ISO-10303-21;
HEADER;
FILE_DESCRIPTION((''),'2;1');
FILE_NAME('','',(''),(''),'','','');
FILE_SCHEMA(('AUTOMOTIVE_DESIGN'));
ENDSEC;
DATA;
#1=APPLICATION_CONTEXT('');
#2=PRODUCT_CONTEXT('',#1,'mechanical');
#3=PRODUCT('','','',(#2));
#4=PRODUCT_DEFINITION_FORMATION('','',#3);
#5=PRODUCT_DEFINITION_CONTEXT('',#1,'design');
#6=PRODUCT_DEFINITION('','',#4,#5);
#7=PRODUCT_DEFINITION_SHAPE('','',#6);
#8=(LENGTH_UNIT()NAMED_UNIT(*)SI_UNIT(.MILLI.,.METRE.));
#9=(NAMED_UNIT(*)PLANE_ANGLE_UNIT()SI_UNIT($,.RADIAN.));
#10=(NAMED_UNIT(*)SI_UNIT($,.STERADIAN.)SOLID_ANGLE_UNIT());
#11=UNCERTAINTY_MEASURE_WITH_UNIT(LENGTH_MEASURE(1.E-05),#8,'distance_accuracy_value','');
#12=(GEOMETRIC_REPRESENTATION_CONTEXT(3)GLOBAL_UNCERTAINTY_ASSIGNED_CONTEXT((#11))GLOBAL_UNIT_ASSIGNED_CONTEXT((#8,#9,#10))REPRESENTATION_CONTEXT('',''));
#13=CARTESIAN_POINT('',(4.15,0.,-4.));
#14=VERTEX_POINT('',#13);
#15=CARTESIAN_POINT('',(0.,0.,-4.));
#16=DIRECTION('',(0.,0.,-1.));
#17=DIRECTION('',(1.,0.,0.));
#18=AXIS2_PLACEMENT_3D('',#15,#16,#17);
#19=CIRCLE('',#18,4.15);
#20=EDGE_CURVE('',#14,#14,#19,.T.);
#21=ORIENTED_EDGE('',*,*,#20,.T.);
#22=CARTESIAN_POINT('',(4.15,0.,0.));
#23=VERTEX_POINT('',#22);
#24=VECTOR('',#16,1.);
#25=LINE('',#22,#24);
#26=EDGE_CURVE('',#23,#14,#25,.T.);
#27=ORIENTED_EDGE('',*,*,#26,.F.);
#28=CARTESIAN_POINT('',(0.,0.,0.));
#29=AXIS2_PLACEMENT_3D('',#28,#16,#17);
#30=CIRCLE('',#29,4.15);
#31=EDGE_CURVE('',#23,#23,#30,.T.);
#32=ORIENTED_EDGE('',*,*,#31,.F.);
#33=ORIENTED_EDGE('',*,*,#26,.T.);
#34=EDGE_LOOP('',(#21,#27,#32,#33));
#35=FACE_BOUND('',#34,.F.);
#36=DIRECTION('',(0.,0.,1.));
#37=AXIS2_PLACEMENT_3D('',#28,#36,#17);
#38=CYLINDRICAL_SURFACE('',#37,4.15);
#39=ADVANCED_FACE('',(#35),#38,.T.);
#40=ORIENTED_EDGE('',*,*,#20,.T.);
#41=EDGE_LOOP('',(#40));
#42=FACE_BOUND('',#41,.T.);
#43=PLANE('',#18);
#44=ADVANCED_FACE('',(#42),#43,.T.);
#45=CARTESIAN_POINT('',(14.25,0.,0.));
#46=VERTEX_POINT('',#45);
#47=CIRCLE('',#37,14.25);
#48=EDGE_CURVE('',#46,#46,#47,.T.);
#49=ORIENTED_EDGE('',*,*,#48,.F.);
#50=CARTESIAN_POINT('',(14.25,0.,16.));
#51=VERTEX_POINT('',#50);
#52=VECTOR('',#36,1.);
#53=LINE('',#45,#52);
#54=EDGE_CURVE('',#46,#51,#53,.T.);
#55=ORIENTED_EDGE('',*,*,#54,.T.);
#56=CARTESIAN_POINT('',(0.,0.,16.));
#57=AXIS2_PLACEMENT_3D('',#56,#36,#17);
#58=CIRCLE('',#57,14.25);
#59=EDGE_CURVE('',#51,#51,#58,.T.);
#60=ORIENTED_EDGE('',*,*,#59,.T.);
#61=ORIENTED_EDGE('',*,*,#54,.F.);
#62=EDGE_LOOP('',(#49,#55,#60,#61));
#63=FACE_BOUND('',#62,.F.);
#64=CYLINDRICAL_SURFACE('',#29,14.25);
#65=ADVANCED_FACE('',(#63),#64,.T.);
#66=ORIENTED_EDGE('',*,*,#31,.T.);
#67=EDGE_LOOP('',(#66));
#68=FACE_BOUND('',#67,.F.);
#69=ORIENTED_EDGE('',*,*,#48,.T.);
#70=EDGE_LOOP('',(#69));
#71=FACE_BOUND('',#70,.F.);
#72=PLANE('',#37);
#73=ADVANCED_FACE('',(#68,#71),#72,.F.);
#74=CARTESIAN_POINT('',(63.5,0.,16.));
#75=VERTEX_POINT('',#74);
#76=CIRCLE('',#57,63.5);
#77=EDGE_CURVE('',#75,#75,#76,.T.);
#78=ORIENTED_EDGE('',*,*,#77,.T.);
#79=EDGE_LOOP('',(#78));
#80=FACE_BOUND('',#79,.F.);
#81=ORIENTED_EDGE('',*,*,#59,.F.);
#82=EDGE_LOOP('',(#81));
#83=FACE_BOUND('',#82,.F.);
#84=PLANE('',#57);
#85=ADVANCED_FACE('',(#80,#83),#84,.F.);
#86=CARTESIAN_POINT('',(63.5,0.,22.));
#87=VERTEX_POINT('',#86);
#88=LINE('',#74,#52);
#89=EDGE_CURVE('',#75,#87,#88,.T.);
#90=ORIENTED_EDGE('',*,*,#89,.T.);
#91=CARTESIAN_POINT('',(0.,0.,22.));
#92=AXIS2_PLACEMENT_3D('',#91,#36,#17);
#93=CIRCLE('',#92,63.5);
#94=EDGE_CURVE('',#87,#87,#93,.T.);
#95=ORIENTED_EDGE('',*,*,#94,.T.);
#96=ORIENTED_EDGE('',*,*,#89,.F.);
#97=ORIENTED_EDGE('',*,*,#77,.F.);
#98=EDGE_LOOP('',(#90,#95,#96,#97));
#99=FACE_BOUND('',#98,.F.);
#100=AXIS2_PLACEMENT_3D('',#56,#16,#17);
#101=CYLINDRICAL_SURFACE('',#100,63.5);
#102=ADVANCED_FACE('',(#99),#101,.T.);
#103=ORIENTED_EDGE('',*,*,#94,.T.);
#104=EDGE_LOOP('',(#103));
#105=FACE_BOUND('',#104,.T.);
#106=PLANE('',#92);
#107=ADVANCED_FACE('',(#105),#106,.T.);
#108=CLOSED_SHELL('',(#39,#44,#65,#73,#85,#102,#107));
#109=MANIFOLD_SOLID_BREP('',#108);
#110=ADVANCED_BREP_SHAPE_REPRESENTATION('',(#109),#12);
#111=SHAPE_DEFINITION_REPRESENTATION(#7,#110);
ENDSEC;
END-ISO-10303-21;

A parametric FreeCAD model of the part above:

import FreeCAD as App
import Part
import Sketcher
from FreeCAD import Vector
Q = App.Units.Quantity

doc = App.newDocument("Part")
body = doc.addObject("PartDesign::Body", "Body")

# Sketch on XY plane
sketch1 = doc.addObject("Sketcher::SketchObject", "Sketch")
body.addObject(sketch1)
sketch1.AttachmentSupport = (doc.XY_Plane, [""])
sketch1.MapMode = "FlatFace"
sketch1.addGeometry(Part.Circle(Vector(0, 0, 0), Vector(0, 0, 1), 14.2), False)
sketch1.addGeometry(Part.Circle(Vector(0, 0, 0), Vector(0, 0, 1), 2.5), False)
sketch1.addConstraint(Sketcher.Constraint("Coincident", 0, 3, -1, 1))
sketch1.addConstraint(Sketcher.Constraint("Coincident", 1, 3, -1, 1))
sketch1.addConstraint(Sketcher.Constraint("Diameter", 1, Q("5 mm")))
sketch1.addConstraint(Sketcher.Constraint("Diameter", 0, Q("28.5 mm")))
pad1 = doc.addObject("PartDesign::Pad", "Pad")
body.addObject(pad1)
pad1.Profile = sketch1
pad1.Length = 16

# Sketch on XY plane
sketch2 = doc.addObject("Sketcher::SketchObject", "Sketch001")
body.addObject(sketch2)
sketch2.AttachmentSupport = (doc.XY_Plane, [""])
sketch2.MapMode = "FlatFace"
sketch2.addGeometry(Part.Circle(Vector(0, 0, 0), Vector(0, 0, 1), 2.5), False)
sketch2.addConstraint(Sketcher.Constraint("Coincident", 0, 3, -1, 1))
sketch2.addConstraint(Sketcher.Constraint("Diameter", 0, Q("5 mm")))
pad2 = doc.addObject("PartDesign::Pad", "Pad001")
body.addObject(pad2)
pad2.Profile = sketch2
pad2.Length = 19

# Sketch on XY plane
sketch3 = doc.addObject("Sketcher::SketchObject", "Sketch002")
body.addObject(sketch3)
sketch3.AttachmentSupport = (doc.XY_Plane, [""])
sketch3.MapMode = "FlatFace"
sketch3.AttachmentOffset = App.Placement(Vector(0, 0, 16), App.Rotation())
sketch3.addGeometry(Part.Circle(Vector(0, 0, 0), Vector(0, 0, 1), 64), False)
sketch3.addConstraint(Sketcher.Constraint("Coincident", 0, 3, -1, 1))
sketch3.addConstraint(Sketcher.Constraint("Diameter", 0, Q("127 mm")))
pad3 = doc.addObject("PartDesign::Pad", "Pad002")
body.addObject(pad3)
pad3.Profile = sketch3
pad3.Length = 6

# Sketch on XY plane
sketch4 = doc.addObject("Sketcher::SketchObject", "Sketch003")
body.addObject(sketch4)
sketch4.AttachmentSupport = (doc.XY_Plane, [""])
sketch4.MapMode = "FlatFace"
sketch4.addGeometry(Part.Circle(Vector(0, 0, 0), Vector(0, 0, 1), 4.2), False)
sketch4.addConstraint(Sketcher.Constraint("Coincident", 0, 3, -1, 1))
sketch4.addConstraint(Sketcher.Constraint("Diameter", 0, Q("8.3 mm")))
pad4 = doc.addObject("PartDesign::Pad", "Pad003")
body.addObject(pad4)
pad4.Profile = sketch4
pad4.Length = 4
pad4.Reversed = True

doc.recompute()
